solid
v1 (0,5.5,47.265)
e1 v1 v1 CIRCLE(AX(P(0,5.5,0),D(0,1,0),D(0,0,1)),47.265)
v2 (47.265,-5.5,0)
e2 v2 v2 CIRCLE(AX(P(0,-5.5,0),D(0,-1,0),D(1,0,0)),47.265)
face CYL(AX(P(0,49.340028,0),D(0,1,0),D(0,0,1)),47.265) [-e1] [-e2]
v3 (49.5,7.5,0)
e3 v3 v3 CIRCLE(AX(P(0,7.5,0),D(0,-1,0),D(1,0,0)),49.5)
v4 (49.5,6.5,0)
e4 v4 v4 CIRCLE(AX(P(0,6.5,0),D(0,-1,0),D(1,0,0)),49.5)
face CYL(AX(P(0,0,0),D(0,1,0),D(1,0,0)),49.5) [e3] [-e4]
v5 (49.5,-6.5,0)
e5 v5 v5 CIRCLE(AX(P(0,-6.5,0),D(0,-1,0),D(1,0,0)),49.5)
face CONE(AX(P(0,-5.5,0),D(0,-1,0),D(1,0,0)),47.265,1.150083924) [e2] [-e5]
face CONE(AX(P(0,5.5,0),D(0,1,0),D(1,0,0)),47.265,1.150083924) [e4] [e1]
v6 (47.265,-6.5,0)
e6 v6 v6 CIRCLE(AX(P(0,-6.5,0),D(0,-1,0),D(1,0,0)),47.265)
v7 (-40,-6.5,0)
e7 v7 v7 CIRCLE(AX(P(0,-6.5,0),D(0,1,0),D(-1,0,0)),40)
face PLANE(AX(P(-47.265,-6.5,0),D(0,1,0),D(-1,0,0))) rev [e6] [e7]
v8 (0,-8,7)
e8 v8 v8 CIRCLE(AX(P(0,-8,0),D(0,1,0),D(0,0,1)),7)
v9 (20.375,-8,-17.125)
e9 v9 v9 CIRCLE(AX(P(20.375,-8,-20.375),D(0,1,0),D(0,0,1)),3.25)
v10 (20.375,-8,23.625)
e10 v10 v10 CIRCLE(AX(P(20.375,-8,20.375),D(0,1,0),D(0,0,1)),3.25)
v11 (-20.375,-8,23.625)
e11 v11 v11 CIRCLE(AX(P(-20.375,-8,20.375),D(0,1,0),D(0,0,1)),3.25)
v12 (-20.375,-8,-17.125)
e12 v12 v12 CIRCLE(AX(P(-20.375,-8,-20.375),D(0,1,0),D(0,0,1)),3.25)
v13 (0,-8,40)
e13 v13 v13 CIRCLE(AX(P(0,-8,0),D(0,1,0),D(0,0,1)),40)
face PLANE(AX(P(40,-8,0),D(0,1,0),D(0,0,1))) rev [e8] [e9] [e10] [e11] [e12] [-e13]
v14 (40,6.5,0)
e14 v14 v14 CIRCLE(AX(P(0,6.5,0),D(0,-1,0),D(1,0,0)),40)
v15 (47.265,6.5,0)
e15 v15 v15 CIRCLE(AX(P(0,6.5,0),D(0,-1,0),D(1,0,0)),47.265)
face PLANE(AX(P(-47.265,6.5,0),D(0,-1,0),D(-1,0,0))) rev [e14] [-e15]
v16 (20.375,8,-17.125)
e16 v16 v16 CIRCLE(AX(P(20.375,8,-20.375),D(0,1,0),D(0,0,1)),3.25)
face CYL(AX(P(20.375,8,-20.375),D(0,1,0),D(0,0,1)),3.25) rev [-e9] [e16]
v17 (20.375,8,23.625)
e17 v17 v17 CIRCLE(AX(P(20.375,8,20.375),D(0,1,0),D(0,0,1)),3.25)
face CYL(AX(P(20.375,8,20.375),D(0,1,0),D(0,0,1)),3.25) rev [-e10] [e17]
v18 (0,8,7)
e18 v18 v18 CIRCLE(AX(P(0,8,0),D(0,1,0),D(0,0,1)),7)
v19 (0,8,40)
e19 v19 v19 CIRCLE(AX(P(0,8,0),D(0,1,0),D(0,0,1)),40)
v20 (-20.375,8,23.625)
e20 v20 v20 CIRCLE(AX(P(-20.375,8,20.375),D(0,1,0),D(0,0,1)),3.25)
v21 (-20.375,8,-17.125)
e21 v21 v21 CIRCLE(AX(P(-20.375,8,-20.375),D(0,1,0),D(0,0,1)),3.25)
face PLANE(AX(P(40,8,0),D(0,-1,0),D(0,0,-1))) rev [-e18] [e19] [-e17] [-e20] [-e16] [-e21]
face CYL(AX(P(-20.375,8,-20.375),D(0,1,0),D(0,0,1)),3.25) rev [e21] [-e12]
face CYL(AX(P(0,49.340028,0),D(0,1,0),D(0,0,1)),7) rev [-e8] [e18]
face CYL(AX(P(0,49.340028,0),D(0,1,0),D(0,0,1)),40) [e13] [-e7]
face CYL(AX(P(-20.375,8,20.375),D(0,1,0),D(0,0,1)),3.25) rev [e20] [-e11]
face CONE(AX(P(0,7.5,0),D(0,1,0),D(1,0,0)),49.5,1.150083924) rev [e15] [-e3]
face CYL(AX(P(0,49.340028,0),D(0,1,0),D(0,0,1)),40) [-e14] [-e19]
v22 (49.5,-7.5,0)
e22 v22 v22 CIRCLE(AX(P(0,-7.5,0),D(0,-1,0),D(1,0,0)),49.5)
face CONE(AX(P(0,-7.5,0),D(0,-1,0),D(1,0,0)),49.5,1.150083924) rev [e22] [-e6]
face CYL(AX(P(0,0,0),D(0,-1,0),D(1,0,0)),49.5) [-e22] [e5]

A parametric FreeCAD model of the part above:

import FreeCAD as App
import Part
import Sketcher

V = App.Vector
Q = App.Units.Quantity


def add_polygon(sketch, points):
    """Adds a closed chain of lines whose ends are joined by coincident constraints."""
    first, n = sketch.GeometryCount, len(points)
    for a, b in zip(points, points[1:] + points[:1]):
        sketch.addGeometry(Part.LineSegment(App.Vector(*a, 0), App.Vector(*b, 0)), False)
    for i in range(n):
        sketch.addConstraint(Sketcher.Constraint("Coincident", first + i, 2, first + (i + 1) % n, 1))

doc = App.newDocument("Part")
body = doc.addObject("PartDesign::Body", "Body")

# Sketch on XY plane
sketch1 = doc.addObject("Sketcher::SketchObject", "Sketch")
body.addObject(sketch1)
sketch1.AttachmentSupport = (doc.XY_Plane, [""])
sketch1.MapMode = "FlatFace"
add_polygon(sketch1, [(7, 8), (7, -8), (40, -8), (40, -5.5), (47.3, -5.5), (47.3, 5.5), (40, 5.5), (40, 8)])  # lines 0-7
sketch1.addConstraint(Sketcher.Constraint("Vertical", 0))
sketch1.addConstraint(Sketcher.Constraint("Horizontal", 1))
sketch1.addConstraint(Sketcher.Constraint("Vertical", 2))
sketch1.addConstraint(Sketcher.Constraint("Horizontal", 3))
sketch1.addConstraint(Sketcher.Constraint("Vertical", 4))
sketch1.addConstraint(Sketcher.Constraint("Horizontal", 5))
sketch1.addConstraint(Sketcher.Constraint("Vertical", 6))
sketch1.addConstraint(Sketcher.Constraint("Horizontal", 7))
sketch1.addConstraint(Sketcher.Constraint("Symmetric", 2, 2, 5, 2, -1))
sketch1.addConstraint(Sketcher.Constraint("Equal", 2, 6))
sketch1.addConstraint(Sketcher.Constraint("DistanceX", 1, 1, 1, 2, Q("33 mm")))
sketch1.addConstraint(Sketcher.Constraint("DistanceY", 0, 2, 0, 1, Q("16 mm")))
sketch1.addConstraint(Sketcher.Constraint("DistanceY", 4, 1, 4, 2, Q("11 mm")))
sketch1.addConstraint(Sketcher.Constraint("DistanceX", -1, 1, 0, 2, Q("7 mm")))
sketch1.addConstraint(Sketcher.Constraint("DistanceX", 3, 1, 3, 2, Q("7.265 mm")))
revolution = doc.addObject("PartDesign::Revolution", "Revolution")
body.addObject(revolution)
revolution.Profile = sketch1
revolution.ReferenceAxis = (sketch1, ["V_Axis"])
revolution.Angle = 360

# Sketch on XY plane
sketch2 = doc.addObject("Sketcher::SketchObject", "Sketch001")
body.addObject(sketch2)
sketch2.AttachmentSupport = (doc.XY_Plane, [""])
sketch2.MapMode = "FlatFace"
add_polygon(sketch2, [(-47.3, -5.5), (-49.5, -6.5), (-49.5, -7.5), (-47.3, -6.5), (-40, -6.5), (-40, -5.5)])  # lines 0-5
sketch2.addConstraint(Sketcher.Constraint("Vertical", 1))
sketch2.addConstraint(Sketcher.Constraint("Horizontal", 3))
sketch2.addConstraint(Sketcher.Constraint("Vertical", 4))
sketch2.addConstraint(Sketcher.Constraint("Horizontal", 5))
sketch2.addConstraint(Sketcher.Constraint("Parallel", 0, 2))
sketch2.addConstraint(Sketcher.Constraint("Horizontal", 0, 2, 2, 2))
sketch2.addConstraint(Sketcher.Constraint("Vertical", 2, 2, 5, 2))
sketch2.addConstraint(Sketcher.Constraint("DistanceY", 1, 2, 1, 1, Q("1 mm")))
sketch2.addConstraint(Sketcher.Constraint("DistanceX", 3, 2, -1, 1, Q("40 mm")))
sketch2.addConstraint(Sketcher.Constraint("DistanceX", 0, 2, -1, 1, Q("49.5 mm")))
sketch2.addConstraint(Sketcher.Constraint("DistanceY", 0, 2, -1, 1, Q("6.5 mm")))
sketch2.addConstraint(Sketcher.Constraint("DistanceX", 3, 1, 3, 2, Q("7.265 mm")))
revolution2 = doc.addObject("PartDesign::Revolution", "Revolution001")
body.addObject(revolution2)
revolution2.Profile = sketch2
revolution2.ReferenceAxis = (sketch2, ["V_Axis"])
revolution2.Angle = 360
doc.recompute()

mirrored = doc.addObject("PartDesign::Mirrored", "Mirrored")
body.addObject(mirrored)
mirrored.Originals = [revolution2]
mirrored.MirrorPlane = (doc.XZ_Plane, [""])
body.Tip = mirrored

# Sketch on XZ plane
sketch3 = doc.addObject("Sketcher::SketchObject", "Sketch002")
body.addObject(sketch3)
sketch3.AttachmentSupport = (doc.XZ_Plane, [""])
sketch3.MapMode = "FlatFace"
sketch3.AttachmentOffset = App.Placement(V(0, 0, -8), App.Rotation())
sketch3.addGeometry(Part.Circle(V(-20.4, -20.4, 0), V(0, 0, 1), 3.2), False)
sketch3.addGeometry(Part.Circle(V(20.4, -20.4, 0), V(0, 0, 1), 3.2), False)
sketch3.addGeometry(Part.Circle(V(20.4, 20.4, 0), V(0, 0, 1), 3.2), False)
sketch3.addGeometry(Part.Circle(V(-20.4, 20.4, 0), V(0, 0, 1), 3.2), False)
sketch3.addGeometry(Part.Circle(V(0, 0, 0), V(0, 0, 1), 3.2), False)
sketch3.addConstraint(Sketcher.Constraint("Coincident", 4, 3, -1, 1))
sketch3.addConstraint(Sketcher.Constraint("Equal", 0, 1))
sketch3.addConstraint(Sketcher.Constraint("Equal", 1, 2))
sketch3.addConstraint(Sketcher.Constraint("Equal", 2, 3))
sketch3.addConstraint(Sketcher.Constraint("Equal", 3, 4))
sketch3.addConstraint(Sketcher.Constraint("Symmetric", 0, 3, 2, 3, -1, 1))
sketch3.addConstraint(Sketcher.Constraint("Symmetric", 1, 3, 3, 3, -1, 1))
sketch3.addConstraint(Sketcher.Constraint("Symmetric", 0, 3, 1, 3, -2))
sketch3.addConstraint(Sketcher.Constraint("Diameter", 0, Q("6.5 mm")))
sketch3.addConstraint(Sketcher.Constraint("DistanceX", 0, 3, 1, 3, Q("40.75 mm")))
sketch3.addConstraint(Sketcher.Constraint("DistanceY", 1, 3, 2, 3, Q("40.75 mm")))
doc.recompute()
hole = doc.addObject("PartDesign::Hole", "Hole")
body.addObject(hole)
hole.Profile = sketch3
hole.ThreadType = "None"
hole.Diameter = 6.5
hole.DepthType = "ThroughAll"
hole.Reversed = True

doc.recompute()
